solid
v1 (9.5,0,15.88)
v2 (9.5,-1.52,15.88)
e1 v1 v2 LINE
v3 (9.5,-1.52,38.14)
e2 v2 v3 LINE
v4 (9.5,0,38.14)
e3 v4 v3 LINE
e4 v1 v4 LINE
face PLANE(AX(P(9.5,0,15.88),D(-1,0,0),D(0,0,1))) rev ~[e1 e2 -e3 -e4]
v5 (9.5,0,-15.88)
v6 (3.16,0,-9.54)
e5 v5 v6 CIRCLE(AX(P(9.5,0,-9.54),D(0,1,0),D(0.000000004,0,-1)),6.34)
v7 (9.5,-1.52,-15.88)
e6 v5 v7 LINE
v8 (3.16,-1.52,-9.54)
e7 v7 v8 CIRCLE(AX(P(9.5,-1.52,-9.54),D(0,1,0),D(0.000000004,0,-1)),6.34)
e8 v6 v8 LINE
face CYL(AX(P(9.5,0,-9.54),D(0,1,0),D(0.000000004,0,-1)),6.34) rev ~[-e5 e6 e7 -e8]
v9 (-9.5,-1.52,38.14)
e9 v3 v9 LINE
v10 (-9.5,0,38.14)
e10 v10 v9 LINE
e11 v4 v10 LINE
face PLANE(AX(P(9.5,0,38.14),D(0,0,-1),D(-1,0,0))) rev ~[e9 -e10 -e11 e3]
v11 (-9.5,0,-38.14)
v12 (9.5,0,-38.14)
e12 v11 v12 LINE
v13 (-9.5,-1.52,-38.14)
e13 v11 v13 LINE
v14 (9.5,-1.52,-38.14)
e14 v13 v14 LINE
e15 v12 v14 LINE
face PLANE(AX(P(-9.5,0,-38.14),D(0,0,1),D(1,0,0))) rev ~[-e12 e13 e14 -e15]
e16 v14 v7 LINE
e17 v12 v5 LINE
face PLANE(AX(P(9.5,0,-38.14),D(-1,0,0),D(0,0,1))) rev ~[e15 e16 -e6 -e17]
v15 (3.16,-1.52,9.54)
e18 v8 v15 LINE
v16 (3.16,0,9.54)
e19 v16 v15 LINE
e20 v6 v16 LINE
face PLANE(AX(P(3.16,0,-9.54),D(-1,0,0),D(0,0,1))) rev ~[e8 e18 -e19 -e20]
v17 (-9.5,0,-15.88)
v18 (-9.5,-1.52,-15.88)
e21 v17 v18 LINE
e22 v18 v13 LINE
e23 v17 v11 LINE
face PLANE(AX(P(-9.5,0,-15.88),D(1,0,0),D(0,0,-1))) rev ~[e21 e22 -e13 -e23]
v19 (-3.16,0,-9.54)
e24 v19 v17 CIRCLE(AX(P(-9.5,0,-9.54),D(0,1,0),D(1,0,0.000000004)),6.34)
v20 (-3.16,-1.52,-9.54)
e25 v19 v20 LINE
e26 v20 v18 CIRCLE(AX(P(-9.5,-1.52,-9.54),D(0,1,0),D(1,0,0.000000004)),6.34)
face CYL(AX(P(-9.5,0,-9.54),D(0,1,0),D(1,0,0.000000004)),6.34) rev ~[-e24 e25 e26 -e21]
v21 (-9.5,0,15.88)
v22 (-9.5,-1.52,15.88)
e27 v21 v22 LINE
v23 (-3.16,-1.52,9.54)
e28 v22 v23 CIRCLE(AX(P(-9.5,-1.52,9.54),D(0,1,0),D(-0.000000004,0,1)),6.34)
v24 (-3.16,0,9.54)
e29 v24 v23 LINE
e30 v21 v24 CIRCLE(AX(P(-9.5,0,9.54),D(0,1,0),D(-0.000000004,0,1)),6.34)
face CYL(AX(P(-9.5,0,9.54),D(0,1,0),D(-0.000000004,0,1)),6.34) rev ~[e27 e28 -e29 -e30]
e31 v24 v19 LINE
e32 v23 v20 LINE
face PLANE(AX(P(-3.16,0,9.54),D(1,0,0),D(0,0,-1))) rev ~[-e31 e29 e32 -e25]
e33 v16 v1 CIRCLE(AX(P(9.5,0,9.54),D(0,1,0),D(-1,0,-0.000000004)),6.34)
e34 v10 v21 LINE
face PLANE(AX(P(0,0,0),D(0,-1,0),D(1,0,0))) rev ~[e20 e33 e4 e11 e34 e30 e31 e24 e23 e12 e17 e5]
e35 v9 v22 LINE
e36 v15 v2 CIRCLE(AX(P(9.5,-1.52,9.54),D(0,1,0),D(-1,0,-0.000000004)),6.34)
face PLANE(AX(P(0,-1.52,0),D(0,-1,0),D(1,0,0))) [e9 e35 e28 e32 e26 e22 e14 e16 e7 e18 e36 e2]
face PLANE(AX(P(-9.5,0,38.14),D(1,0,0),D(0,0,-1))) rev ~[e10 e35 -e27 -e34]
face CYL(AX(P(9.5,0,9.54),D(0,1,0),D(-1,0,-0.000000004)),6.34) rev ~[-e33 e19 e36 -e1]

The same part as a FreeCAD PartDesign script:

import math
import FreeCAD as App
import Part
import Sketcher

V = App.Vector

doc = App.newDocument("Part")
body = doc.addObject("PartDesign::Body", "Body")

sketch1 = doc.addObject("Sketcher::SketchObject", "Sketch")
body.addObject(sketch1)
sketch1.AttachmentSupport = (doc.XZ_Plane, [""])
sketch1.MapMode = "FlatFace"
sketch1.addGeometry([
    Part.LineSegment(V(-3, 10, 0), V(-3, -10, 0)),
    Part.ArcOfCircle(Part.Circle(V(-9, -10, 0), V(0, 0, 1), 6), math.radians(-90), math.radians(0)),
    Part.LineSegment(V(-10, -16, 0), V(-10, -38, 0)),
    Part.LineSegment(V(-10, -38, 0), V(10, -38, 0)),
    Part.LineSegment(V(10, -38, 0), V(10, -16, 0)),
    Part.ArcOfCircle(Part.Circle(V(9, -10, 0), V(0, 0, 1), 6), math.radians(180), math.radians(270)),
    Part.LineSegment(V(3, -10, 0), V(3, 10, 0)),
    Part.ArcOfCircle(Part.Circle(V(9, 10, 0), V(0, 0, 1), 6), math.radians(90), math.radians(180)),
    Part.LineSegment(V(10, 16, 0), V(10, 38, 0)),
    Part.LineSegment(V(10, 38, 0), V(-10, 38, 0)),
    Part.LineSegment(V(-10, 38, 0), V(-10, 16, 0)),
    Part.ArcOfCircle(Part.Circle(V(-9, 10, 0), V(0, 0, 1), 6), math.radians(0), math.radians(90)),
], False)
sketch1.addConstraint([
    Sketcher.Constraint("Tangent", 0, 2, 1, 2),
    Sketcher.Constraint("Coincident", 1, 1, 2, 1),
    Sketcher.Constraint("Coincident", 2, 2, 3, 1),
    Sketcher.Constraint("Coincident", 3, 2, 4, 1),
    Sketcher.Constraint("Coincident", 4, 2, 5, 2),
    Sketcher.Constraint("Tangent", 5, 1, 6, 1),
    Sketcher.Constraint("Tangent", 6, 2, 7, 2),
    Sketcher.Constraint("Coincident", 7, 1, 8, 1),
    Sketcher.Constraint("Coincident", 8, 2, 9, 1),
    Sketcher.Constraint("Coincident", 9, 2, 10, 1),
    Sketcher.Constraint("Coincident", 10, 2, 11, 2),
    Sketcher.Constraint("Tangent", 11, 1, 0, 1),
    Sketcher.Constraint("Vertical", 0),
    Sketcher.Constraint("Vertical", 2),
    Sketcher.Constraint("Horizontal", 3),
    Sketcher.Constraint("Vertical", 4),
    Sketcher.Constraint("Vertical", 6),
    Sketcher.Constraint("Vertical", 8),
    Sketcher.Constraint("Horizontal", 9),
    Sketcher.Constraint("Vertical", 10),
    Sketcher.Constraint("Equal", 1, 5),
    Sketcher.Constraint("Equal", 5, 7),
    Sketcher.Constraint("Equal", 7, 11),
    Sketcher.Constraint("Symmetric", 1, 3, 7, 3, -1, 1),
    Sketcher.Constraint("Symmetric", 2, 2, 8, 2, -1, 1),
    Sketcher.Constraint("Symmetric", 4, 2, 10, 2, -1, 1),
    Sketcher.Constraint("Symmetric", 1, 1, 4, 2, -2),
    Sketcher.Constraint("Vertical", 11, 3, 1, 1),
    Sketcher.Constraint("DistanceX", 3, 1, 3, 2, 19.0),
    Sketcher.Constraint("Radius", 1, 6.34),
    Sketcher.Constraint("DistanceY", 0, 2, 0, 1, 19.08),
    Sketcher.Constraint("DistanceY", 2, 2, 2, 1, 22.26),
])
pad1 = doc.addObject("PartDesign::Pad", "Pad")
body.addObject(pad1)
pad1.Profile = sketch1
pad1.Length = 1.52

doc.recompute()
